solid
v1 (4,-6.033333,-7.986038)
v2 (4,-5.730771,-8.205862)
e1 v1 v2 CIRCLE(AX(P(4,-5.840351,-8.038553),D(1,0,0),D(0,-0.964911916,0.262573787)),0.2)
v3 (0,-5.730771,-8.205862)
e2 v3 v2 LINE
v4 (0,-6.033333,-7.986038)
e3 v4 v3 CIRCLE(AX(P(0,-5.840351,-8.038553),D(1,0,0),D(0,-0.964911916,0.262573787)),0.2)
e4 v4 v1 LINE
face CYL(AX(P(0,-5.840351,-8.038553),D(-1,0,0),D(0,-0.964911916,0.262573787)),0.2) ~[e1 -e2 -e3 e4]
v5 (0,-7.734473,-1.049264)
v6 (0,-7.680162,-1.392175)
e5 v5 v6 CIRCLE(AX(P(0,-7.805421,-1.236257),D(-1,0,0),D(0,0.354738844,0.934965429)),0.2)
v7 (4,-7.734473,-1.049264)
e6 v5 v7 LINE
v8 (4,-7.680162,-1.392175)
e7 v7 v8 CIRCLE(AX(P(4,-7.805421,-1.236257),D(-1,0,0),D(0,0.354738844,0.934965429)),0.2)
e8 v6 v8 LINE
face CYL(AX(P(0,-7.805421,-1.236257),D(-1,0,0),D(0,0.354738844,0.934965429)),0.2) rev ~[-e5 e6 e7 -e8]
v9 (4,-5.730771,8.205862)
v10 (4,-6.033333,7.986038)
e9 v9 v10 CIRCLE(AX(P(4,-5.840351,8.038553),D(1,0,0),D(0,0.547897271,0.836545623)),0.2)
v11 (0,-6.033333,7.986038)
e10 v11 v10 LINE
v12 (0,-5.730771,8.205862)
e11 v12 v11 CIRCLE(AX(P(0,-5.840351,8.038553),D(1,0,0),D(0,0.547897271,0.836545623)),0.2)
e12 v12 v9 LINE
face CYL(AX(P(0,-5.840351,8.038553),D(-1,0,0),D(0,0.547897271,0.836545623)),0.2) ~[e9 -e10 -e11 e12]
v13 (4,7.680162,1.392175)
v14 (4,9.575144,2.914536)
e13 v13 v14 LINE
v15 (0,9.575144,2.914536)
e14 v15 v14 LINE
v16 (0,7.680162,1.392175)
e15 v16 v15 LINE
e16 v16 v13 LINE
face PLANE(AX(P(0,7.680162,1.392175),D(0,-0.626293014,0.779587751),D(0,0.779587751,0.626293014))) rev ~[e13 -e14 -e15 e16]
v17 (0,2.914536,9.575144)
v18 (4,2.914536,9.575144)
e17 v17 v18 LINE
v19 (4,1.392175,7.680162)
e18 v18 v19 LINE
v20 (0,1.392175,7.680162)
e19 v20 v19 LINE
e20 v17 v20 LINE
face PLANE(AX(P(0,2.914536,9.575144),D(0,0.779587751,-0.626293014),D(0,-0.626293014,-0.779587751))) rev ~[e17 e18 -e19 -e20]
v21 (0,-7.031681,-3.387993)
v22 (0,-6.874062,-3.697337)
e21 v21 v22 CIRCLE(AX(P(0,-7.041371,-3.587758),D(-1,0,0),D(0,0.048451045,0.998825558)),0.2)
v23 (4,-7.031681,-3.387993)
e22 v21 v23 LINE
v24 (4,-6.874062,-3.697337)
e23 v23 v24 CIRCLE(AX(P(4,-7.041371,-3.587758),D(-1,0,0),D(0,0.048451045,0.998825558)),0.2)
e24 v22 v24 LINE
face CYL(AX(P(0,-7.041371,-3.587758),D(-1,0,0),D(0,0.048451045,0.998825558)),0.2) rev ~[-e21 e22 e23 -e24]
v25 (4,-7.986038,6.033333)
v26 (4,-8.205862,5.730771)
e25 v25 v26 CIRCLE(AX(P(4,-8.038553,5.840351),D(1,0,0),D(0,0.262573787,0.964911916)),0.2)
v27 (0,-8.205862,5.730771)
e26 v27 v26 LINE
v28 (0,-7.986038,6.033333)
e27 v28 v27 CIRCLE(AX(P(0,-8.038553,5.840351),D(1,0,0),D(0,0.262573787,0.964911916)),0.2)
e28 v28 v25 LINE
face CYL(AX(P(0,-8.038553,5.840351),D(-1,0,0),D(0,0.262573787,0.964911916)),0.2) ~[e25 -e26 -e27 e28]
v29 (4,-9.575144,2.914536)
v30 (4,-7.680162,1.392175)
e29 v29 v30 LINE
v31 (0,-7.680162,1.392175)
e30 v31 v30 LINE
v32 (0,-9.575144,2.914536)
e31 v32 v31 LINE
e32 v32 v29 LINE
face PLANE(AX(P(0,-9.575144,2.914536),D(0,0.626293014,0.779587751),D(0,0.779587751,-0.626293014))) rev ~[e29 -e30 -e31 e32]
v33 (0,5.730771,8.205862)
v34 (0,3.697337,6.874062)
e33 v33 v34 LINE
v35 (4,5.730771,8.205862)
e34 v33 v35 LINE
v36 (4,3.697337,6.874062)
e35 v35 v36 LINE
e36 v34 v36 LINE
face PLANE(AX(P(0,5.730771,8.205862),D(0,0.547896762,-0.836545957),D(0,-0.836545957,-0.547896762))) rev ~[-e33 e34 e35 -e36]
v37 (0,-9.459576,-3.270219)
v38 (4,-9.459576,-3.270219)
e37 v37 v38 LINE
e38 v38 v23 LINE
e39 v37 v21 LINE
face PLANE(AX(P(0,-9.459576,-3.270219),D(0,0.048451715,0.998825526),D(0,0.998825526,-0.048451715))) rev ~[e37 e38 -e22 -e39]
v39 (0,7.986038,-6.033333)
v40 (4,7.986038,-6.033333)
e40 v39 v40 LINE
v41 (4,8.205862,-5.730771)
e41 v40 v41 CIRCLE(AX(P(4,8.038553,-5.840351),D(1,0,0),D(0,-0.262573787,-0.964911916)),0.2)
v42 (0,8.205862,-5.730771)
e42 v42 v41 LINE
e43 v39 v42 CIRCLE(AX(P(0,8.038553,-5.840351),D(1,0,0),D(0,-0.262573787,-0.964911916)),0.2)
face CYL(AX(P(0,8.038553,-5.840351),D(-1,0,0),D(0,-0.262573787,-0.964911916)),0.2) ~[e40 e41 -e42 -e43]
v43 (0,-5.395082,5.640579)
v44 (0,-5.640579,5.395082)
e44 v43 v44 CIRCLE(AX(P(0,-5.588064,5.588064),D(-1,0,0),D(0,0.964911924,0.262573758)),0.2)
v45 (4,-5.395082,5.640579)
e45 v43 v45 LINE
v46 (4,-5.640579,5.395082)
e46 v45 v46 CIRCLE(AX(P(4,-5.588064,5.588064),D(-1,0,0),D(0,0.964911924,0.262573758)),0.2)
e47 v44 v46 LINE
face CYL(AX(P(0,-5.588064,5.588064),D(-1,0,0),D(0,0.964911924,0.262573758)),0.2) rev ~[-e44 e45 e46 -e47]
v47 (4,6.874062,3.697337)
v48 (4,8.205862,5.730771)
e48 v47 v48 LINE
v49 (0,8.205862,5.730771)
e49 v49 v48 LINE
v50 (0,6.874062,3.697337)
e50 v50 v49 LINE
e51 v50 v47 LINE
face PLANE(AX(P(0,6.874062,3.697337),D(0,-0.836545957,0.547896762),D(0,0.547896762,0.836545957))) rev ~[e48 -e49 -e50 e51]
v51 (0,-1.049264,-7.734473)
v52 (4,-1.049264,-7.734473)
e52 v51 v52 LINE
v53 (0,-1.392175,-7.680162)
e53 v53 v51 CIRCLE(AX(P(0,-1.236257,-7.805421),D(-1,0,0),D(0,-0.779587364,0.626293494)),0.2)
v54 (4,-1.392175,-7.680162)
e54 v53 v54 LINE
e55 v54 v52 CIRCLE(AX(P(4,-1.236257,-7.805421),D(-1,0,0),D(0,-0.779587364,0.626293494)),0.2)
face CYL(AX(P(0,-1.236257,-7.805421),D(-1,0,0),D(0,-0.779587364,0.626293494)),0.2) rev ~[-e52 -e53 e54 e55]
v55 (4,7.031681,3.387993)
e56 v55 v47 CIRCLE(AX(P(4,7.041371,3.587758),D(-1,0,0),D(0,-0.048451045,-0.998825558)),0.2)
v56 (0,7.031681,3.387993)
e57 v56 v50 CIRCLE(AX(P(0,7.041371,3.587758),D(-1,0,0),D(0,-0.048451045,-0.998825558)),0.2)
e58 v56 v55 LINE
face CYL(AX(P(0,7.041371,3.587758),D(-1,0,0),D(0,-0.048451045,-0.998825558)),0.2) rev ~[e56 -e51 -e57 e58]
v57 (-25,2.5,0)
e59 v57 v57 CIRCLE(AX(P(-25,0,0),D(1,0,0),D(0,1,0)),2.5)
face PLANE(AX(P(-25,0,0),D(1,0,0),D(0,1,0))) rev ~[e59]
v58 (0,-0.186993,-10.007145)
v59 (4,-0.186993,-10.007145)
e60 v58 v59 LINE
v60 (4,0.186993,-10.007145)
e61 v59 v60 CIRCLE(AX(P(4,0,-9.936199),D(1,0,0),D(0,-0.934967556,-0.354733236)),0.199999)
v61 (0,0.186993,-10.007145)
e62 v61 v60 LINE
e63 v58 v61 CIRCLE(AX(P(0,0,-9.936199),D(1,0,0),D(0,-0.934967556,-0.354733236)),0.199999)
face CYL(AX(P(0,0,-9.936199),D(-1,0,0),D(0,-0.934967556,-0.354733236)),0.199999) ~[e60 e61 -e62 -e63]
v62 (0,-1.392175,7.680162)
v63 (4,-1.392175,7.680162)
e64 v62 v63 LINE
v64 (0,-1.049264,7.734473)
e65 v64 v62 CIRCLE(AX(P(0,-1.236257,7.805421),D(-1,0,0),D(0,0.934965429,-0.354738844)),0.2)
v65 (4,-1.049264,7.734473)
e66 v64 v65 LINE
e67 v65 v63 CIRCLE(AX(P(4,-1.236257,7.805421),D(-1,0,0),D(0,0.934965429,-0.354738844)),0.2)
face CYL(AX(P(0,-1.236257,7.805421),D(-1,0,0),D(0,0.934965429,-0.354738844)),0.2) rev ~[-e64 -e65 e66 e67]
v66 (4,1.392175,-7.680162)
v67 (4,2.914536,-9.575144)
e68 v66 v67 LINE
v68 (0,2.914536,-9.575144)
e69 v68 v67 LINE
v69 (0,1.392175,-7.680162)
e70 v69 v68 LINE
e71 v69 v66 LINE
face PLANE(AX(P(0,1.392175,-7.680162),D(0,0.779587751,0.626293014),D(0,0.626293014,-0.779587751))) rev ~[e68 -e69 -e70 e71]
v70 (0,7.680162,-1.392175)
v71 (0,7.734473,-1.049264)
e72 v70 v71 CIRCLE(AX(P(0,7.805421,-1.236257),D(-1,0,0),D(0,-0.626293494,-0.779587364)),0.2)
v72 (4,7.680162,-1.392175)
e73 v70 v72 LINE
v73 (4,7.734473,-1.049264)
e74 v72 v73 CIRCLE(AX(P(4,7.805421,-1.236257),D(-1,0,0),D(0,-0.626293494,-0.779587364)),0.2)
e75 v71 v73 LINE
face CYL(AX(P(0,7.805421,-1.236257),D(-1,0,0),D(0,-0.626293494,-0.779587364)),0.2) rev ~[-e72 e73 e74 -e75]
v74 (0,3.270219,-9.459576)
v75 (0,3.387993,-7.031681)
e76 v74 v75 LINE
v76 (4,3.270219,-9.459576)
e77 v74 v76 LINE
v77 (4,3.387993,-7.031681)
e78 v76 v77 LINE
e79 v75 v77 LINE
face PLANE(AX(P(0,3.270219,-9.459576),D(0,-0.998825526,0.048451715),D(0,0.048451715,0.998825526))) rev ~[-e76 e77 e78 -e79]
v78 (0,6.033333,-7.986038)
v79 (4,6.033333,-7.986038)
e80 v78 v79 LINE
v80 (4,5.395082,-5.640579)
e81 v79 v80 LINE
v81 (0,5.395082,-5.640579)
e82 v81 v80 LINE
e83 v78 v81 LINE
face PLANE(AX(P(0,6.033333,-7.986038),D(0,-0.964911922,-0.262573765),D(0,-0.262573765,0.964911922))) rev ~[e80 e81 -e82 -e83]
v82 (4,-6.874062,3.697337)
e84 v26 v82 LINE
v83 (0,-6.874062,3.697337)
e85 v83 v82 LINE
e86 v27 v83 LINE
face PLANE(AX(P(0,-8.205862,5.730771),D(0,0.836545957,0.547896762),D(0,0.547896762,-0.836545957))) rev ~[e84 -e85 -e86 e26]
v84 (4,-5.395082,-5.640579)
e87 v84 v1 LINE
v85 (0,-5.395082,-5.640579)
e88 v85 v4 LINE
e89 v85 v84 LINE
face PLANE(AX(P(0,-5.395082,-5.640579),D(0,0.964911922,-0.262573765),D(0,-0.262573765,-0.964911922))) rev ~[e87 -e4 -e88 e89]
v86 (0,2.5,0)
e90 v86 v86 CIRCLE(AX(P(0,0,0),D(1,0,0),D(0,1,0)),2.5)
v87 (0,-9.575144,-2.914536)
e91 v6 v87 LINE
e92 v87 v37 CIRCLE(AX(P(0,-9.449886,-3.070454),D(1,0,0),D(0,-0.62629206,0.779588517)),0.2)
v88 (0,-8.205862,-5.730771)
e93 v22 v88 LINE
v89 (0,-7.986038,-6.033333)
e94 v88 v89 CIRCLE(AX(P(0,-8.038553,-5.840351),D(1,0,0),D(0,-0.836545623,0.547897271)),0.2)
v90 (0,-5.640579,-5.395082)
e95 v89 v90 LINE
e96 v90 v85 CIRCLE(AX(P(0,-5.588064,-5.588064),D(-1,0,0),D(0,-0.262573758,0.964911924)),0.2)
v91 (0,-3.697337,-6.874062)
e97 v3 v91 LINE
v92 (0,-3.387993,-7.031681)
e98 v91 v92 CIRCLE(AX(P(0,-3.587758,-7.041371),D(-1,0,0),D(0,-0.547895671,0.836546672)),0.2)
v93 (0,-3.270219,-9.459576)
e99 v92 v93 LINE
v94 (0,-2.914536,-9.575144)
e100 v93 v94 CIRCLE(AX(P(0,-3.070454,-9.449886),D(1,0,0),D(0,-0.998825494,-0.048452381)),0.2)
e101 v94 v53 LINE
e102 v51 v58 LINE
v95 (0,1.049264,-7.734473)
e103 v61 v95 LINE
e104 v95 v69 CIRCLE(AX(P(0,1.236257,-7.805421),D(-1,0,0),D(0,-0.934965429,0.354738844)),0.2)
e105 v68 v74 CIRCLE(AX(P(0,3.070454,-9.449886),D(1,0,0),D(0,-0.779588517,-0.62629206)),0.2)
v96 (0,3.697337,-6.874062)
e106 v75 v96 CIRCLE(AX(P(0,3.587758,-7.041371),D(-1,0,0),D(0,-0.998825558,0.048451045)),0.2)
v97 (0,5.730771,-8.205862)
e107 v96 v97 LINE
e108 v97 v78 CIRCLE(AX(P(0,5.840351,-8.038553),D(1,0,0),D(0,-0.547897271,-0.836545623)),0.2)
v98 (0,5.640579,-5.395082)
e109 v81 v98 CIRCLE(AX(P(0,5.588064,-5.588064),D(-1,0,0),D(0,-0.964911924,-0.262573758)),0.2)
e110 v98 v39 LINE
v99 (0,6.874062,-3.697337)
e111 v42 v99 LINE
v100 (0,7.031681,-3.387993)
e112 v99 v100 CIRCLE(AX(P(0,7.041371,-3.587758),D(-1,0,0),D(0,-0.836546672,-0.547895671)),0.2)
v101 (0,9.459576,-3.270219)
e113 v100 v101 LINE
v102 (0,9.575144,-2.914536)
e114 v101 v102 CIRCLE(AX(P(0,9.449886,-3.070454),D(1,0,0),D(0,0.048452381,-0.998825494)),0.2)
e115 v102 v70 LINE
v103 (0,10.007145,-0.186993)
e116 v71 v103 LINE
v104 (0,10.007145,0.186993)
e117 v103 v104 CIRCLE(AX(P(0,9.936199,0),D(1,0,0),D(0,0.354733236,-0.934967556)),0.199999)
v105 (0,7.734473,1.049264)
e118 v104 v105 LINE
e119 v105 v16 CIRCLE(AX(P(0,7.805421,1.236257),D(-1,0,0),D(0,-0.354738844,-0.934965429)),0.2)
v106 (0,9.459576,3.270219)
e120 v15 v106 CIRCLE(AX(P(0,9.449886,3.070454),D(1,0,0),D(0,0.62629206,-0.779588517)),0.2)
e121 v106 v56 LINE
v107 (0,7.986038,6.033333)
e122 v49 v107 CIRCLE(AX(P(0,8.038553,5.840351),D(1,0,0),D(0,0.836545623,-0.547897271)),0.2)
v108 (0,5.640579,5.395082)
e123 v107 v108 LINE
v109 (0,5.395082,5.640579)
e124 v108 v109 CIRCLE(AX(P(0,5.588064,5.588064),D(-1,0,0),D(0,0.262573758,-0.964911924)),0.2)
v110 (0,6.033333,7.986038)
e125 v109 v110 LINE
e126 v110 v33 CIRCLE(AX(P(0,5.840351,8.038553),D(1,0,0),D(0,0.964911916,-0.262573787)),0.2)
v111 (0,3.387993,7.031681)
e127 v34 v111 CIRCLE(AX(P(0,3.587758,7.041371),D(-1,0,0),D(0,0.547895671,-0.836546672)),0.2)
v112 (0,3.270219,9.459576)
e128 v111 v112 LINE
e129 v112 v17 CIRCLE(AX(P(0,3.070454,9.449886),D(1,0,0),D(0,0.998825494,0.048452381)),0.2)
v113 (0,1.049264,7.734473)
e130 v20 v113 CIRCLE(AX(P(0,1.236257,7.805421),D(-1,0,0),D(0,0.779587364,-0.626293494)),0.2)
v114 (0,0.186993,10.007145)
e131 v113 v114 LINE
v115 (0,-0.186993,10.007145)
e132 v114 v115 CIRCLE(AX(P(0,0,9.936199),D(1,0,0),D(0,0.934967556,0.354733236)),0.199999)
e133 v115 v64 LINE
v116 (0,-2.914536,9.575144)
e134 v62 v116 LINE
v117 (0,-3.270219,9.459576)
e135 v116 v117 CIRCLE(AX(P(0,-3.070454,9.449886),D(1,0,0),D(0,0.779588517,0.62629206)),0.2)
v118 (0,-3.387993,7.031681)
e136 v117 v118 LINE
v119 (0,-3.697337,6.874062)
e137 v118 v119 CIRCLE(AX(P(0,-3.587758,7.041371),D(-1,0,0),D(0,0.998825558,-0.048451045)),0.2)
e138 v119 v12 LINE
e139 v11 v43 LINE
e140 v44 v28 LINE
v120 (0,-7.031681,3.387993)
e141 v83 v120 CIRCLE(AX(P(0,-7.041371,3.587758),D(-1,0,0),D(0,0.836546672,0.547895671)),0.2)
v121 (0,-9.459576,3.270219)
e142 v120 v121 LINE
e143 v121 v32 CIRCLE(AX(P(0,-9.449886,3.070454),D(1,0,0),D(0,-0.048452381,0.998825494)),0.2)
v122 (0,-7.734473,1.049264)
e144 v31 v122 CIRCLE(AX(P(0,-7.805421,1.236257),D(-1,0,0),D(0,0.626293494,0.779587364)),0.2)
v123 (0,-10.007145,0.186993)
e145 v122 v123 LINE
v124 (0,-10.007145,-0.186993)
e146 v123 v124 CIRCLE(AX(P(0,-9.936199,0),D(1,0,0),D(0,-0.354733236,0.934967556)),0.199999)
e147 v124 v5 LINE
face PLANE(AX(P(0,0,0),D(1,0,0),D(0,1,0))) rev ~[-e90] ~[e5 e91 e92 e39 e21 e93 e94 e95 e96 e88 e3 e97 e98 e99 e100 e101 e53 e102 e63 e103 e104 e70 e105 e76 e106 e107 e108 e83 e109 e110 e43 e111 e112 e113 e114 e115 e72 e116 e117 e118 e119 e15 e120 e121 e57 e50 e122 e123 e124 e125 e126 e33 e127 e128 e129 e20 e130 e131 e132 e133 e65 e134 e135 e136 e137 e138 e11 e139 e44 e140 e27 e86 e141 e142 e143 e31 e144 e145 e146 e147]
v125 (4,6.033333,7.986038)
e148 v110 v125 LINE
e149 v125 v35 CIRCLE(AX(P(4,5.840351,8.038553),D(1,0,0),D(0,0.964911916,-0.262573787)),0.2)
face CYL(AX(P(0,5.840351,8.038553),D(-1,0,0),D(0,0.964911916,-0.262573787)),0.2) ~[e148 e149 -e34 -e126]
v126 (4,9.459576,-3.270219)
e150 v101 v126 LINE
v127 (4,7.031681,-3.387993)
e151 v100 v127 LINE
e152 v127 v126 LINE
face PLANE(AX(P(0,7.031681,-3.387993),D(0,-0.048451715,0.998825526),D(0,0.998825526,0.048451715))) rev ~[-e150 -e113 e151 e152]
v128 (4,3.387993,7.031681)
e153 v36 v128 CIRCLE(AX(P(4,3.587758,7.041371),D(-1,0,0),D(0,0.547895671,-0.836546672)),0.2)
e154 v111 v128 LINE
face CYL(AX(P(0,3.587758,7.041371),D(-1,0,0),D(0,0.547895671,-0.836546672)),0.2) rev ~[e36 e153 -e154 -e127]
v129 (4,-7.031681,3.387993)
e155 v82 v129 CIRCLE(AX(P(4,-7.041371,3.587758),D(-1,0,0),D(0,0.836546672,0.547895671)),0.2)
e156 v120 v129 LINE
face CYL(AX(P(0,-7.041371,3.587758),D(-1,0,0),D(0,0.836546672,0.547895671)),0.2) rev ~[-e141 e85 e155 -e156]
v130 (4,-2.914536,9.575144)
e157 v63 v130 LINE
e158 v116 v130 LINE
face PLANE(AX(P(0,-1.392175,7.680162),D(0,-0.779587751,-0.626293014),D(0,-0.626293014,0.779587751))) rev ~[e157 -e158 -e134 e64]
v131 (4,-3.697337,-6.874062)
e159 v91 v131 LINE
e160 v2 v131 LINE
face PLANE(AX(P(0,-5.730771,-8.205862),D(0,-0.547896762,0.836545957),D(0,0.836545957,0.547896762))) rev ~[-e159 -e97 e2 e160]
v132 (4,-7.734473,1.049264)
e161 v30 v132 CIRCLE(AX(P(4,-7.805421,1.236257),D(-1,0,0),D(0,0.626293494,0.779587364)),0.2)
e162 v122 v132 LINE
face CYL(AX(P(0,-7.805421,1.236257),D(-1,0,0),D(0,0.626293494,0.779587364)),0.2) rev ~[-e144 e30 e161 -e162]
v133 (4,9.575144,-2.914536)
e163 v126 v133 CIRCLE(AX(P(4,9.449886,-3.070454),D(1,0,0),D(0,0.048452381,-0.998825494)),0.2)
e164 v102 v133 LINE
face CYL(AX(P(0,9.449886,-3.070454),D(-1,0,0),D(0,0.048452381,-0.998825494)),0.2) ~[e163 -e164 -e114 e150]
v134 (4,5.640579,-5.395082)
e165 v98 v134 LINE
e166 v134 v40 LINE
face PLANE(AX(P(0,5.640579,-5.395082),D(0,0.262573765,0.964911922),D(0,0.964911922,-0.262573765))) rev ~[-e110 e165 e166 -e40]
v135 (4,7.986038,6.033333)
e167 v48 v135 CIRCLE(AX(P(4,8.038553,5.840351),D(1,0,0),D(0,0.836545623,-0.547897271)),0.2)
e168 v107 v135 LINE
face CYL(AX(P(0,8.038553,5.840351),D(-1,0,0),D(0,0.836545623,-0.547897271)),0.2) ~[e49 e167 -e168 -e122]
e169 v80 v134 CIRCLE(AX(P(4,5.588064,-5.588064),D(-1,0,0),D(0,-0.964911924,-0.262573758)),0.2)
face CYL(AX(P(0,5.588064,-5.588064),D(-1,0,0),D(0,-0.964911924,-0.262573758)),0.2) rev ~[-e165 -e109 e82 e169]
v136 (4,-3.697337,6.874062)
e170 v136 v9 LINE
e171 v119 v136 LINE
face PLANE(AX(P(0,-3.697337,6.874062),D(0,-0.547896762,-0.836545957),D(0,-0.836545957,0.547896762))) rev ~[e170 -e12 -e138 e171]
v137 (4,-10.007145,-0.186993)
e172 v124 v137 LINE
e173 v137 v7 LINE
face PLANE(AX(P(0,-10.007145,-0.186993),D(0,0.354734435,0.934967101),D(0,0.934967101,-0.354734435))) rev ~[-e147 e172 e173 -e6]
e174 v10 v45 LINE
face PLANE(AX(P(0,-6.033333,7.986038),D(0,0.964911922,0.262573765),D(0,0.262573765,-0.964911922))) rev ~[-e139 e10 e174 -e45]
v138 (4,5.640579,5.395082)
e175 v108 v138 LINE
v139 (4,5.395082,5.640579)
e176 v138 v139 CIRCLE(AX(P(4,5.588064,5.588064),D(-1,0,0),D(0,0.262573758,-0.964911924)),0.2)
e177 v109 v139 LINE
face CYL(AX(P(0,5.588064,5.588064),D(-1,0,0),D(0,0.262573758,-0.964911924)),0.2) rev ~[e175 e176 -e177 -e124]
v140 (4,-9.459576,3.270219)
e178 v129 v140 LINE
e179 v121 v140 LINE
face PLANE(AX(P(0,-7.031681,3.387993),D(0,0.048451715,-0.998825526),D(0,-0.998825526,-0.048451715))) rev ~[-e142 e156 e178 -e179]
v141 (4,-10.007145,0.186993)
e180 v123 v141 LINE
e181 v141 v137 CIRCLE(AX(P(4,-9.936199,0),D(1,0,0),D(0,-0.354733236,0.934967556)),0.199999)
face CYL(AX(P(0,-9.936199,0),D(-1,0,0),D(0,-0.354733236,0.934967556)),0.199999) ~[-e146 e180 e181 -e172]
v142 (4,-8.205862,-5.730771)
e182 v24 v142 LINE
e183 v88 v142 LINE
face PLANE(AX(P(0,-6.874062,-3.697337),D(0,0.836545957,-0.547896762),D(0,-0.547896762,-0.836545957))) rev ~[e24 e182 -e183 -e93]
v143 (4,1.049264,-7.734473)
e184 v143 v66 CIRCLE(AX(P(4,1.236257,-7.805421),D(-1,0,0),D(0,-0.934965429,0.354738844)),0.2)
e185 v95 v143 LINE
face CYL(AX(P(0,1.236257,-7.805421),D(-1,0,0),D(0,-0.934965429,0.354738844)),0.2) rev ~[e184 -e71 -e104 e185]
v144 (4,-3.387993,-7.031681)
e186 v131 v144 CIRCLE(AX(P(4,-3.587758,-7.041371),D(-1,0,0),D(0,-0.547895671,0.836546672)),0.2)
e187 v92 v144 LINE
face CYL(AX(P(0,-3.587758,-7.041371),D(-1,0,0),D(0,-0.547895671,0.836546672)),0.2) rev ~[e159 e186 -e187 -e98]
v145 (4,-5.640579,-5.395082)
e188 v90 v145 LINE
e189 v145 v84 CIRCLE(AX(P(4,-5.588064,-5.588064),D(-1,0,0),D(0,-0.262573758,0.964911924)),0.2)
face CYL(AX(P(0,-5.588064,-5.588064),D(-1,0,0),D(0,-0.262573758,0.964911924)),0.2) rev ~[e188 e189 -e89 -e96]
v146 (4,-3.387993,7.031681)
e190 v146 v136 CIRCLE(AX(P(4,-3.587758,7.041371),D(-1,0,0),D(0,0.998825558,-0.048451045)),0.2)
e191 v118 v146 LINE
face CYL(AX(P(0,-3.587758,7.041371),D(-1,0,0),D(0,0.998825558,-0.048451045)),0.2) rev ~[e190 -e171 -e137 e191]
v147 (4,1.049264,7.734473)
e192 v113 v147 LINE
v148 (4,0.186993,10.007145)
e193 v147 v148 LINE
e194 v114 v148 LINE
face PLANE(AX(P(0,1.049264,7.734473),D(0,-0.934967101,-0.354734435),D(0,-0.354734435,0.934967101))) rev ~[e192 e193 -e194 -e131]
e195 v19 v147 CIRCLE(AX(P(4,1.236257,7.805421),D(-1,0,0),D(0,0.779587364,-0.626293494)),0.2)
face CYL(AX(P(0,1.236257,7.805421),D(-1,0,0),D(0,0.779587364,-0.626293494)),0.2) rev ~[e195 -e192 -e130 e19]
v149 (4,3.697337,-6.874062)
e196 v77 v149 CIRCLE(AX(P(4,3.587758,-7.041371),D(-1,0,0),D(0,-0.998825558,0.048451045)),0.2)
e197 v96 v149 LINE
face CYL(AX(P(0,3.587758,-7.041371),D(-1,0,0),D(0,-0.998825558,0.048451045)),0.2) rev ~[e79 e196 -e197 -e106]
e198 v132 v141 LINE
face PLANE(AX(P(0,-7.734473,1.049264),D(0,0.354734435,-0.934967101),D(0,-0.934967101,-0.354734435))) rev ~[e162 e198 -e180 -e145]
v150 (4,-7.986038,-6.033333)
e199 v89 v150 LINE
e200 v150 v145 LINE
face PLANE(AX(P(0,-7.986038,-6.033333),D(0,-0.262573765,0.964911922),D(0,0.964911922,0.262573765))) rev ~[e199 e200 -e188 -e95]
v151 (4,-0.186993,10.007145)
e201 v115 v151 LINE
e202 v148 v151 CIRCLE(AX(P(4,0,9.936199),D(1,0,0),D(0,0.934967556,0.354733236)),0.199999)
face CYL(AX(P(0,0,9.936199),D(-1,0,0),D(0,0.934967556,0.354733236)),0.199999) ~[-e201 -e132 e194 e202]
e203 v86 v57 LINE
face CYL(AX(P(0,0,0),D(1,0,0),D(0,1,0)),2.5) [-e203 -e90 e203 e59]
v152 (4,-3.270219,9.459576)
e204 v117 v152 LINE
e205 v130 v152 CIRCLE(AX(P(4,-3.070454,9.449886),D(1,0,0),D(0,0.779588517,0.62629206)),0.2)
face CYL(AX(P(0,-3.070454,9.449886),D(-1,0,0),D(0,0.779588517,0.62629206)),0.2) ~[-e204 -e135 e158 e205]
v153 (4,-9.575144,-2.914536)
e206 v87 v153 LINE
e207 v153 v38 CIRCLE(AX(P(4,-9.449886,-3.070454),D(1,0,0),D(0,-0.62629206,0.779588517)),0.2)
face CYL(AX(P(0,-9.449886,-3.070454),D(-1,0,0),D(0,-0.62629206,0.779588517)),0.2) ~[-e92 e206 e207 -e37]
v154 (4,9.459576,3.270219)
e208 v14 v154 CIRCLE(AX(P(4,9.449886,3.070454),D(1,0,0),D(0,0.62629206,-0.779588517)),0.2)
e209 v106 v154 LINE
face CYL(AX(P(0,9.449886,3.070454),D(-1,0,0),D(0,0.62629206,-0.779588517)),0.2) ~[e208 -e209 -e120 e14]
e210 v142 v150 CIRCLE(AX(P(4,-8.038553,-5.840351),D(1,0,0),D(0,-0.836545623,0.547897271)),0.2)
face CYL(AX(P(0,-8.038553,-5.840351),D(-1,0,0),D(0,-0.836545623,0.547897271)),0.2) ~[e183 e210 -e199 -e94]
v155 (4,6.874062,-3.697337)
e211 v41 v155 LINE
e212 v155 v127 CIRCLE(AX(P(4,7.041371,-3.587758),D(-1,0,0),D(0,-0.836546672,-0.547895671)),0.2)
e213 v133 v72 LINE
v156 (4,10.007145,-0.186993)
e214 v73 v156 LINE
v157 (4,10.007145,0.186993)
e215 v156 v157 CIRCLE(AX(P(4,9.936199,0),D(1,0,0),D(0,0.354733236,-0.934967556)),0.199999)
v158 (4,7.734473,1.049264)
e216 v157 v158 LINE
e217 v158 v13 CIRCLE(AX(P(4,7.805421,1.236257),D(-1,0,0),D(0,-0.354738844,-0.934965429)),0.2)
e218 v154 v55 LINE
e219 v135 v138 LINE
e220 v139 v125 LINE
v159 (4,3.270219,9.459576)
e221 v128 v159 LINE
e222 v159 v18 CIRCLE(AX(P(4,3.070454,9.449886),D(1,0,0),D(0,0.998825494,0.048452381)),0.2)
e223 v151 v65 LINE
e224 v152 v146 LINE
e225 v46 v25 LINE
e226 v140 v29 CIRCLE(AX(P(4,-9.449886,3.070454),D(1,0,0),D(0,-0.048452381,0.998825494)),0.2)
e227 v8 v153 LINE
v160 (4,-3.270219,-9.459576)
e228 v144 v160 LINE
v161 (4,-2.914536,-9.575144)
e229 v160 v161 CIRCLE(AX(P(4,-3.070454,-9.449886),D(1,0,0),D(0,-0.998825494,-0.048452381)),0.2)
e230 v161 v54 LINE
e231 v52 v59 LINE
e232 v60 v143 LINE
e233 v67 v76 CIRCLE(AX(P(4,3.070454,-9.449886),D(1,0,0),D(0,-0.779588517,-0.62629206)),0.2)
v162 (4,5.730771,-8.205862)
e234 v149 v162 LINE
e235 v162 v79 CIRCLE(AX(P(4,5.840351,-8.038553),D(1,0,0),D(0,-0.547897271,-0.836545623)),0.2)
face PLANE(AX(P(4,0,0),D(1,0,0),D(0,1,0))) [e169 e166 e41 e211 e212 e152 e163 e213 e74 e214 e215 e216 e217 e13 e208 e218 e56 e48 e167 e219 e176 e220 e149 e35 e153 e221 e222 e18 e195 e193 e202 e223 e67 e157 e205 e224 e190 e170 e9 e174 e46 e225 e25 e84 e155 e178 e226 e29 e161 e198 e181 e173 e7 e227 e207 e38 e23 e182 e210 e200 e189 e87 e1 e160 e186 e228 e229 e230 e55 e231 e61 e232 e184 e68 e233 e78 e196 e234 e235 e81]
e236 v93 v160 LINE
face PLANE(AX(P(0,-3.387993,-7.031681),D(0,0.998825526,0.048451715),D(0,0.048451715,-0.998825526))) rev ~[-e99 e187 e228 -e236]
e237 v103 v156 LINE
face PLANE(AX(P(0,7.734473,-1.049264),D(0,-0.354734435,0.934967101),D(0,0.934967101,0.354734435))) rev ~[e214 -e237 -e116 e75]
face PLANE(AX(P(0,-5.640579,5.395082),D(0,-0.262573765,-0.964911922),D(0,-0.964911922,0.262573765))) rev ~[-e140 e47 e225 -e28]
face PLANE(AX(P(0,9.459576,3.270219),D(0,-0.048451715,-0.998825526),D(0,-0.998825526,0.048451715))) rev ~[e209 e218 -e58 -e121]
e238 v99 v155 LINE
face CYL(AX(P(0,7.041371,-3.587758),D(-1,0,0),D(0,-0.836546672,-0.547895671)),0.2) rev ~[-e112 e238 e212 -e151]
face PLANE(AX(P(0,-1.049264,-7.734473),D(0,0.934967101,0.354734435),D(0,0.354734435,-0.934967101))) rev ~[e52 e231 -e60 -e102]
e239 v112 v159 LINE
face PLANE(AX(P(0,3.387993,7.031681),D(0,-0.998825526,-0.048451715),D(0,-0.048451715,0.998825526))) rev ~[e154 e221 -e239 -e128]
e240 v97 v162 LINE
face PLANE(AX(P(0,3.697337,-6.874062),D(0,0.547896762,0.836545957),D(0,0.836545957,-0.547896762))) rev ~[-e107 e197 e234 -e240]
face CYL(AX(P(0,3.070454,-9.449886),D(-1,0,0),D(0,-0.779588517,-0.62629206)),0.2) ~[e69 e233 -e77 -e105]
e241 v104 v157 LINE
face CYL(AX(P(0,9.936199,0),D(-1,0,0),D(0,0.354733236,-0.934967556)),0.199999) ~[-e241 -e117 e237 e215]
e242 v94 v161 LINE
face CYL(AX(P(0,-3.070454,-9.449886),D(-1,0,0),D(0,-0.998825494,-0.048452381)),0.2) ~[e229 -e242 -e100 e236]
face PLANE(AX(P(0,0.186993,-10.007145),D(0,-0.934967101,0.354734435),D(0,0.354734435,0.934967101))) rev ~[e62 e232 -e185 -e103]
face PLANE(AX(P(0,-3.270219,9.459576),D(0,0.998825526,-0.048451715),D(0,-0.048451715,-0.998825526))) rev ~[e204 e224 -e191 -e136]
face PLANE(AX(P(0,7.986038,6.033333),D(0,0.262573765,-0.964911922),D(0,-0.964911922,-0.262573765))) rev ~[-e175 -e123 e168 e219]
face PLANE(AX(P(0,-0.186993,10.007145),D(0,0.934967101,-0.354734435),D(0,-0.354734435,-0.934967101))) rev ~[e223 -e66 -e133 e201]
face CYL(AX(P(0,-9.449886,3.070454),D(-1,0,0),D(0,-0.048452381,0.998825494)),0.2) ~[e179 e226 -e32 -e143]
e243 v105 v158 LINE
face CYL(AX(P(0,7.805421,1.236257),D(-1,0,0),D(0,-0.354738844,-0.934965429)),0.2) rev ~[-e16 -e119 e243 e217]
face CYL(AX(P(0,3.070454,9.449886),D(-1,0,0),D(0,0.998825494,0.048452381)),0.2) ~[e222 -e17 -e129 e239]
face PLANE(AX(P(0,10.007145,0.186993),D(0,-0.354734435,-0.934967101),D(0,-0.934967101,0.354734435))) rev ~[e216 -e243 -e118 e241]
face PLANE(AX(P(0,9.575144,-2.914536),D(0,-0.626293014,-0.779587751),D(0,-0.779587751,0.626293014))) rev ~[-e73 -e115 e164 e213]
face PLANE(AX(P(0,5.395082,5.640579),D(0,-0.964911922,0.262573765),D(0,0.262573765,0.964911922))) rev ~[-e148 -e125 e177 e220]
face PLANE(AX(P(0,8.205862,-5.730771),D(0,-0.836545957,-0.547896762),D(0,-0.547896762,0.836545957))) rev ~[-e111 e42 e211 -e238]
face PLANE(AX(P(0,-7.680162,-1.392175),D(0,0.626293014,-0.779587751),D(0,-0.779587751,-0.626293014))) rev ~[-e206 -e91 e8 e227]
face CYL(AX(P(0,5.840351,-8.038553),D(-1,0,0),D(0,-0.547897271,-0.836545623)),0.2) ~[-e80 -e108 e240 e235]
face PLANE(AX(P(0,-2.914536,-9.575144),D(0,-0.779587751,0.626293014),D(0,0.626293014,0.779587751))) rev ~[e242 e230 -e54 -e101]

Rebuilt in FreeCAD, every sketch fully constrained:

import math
import FreeCAD as App
import Part
import Sketcher

V = App.Vector

doc = App.newDocument("Part")
body = doc.addObject("PartDesign::Body", "Body")

# Sketch on YZ plane
sketch1 = body.newObject("Sketcher::SketchObject", "Sketch")
sketch1.AttachmentSupport = (doc.getObject("YZ_Plane"), [""])
sketch1.MapMode = "FlatFace"
sketch1.addGeometry(Part.ArcOfCircle(Part.Circle(V(0, 9.94, 0), V(0, 0, 1), 0.2), math.radians(21), math.radians(159)), False)
sketch1.addGeometry(Part.LineSegment(V(-0.19, 10.01, 0), V(-1.05, 7.73, 0)), False)
sketch1.addGeometry(Part.ArcOfCircle(Part.Circle(V(-1.24, 7.81, 0), V(0, 0, 1), 0.2), math.radians(-141), math.radians(-21)), False)
sketch1.addGeometry(Part.LineSegment(V(-1.39, 7.68, 0), V(-2.91, 9.58, 0)), False)
sketch1.addGeometry(Part.ArcOfCircle(Part.Circle(V(-3.07, 9.45, 0), V(0, 0, 1), 0.2), math.radians(39), math.radians(177)), False)
sketch1.addGeometry(Part.LineSegment(V(-3.27, 9.46, 0), V(-3.39, 7.03, 0)), False)
sketch1.addGeometry(Part.ArcOfCircle(Part.Circle(V(-3.59, 7.04, 0), V(0, 0, 1), 0.2), math.radians(-123), math.radians(-3)), False)
sketch1.addGeometry(Part.LineSegment(V(-3.7, 6.87, 0), V(-5.73, 8.21, 0)), False)
sketch1.addGeometry(Part.ArcOfCircle(Part.Circle(V(-5.84, 8.04, 0), V(0, 0, 1), 0.2), math.radians(57), math.radians(195)), False)
sketch1.addGeometry(Part.LineSegment(V(-6.03, 7.99, 0), V(-5.4, 5.64, 0)), False)
sketch1.addGeometry(Part.ArcOfCircle(Part.Circle(V(-5.59, 5.59, 0), V(0, 0, 1), 0.2), math.radians(-105), math.radians(15)), False)
sketch1.addGeometry(Part.LineSegment(V(-5.64, 5.4, 0), V(-7.99, 6.03, 0)), False)
sketch1.addGeometry(Part.ArcOfCircle(Part.Circle(V(-8.04, 5.84, 0), V(0, 0, 1), 0.2), math.radians(75), math.radians(213)), False)
sketch1.addGeometry(Part.LineSegment(V(-8.21, 5.73, 0), V(-6.87, 3.7, 0)), False)
sketch1.addGeometry(Part.ArcOfCircle(Part.Circle(V(-7.04, 3.59, 0), V(0, 0, 1), 0.2), math.radians(-87), math.radians(33)), False)
sketch1.addGeometry(Part.LineSegment(V(-7.03, 3.39, 0), V(-9.46, 3.27, 0)), False)
sketch1.addGeometry(Part.ArcOfCircle(Part.Circle(V(-9.45, 3.07, 0), V(0, 0, 1), 0.2), math.radians(93), math.radians(231)), False)
sketch1.addGeometry(Part.LineSegment(V(-9.58, 2.91, 0), V(-7.68, 1.39, 0)), False)
sketch1.addGeometry(Part.ArcOfCircle(Part.Circle(V(-7.81, 1.24, 0), V(0, 0, 1), 0.2), math.radians(-69), math.radians(51)), False)
sketch1.addGeometry(Part.LineSegment(V(-7.73, 1.05, 0), V(-10.01, 0.19, 0)), False)
sketch1.addGeometry(Part.ArcOfCircle(Part.Circle(V(-9.94, 0, 0), V(0, 0, 1), 0.2), math.radians(111), math.radians(249)), False)
sketch1.addGeometry(Part.LineSegment(V(-10.01, -0.19, 0), V(-7.73, -1.05, 0)), False)
sketch1.addGeometry(Part.ArcOfCircle(Part.Circle(V(-7.81, -1.24, 0), V(0, 0, 1), 0.2), math.radians(-51), math.radians(69)), False)
sketch1.addGeometry(Part.LineSegment(V(-7.68, -1.39, 0), V(-9.58, -2.91, 0)), False)
sketch1.addGeometry(Part.ArcOfCircle(Part.Circle(V(-9.45, -3.07, 0), V(0, 0, 1), 0.2), math.radians(129), math.radians(267)), False)
sketch1.addGeometry(Part.LineSegment(V(-9.46, -3.27, 0), V(-7.03, -3.39, 0)), False)
sketch1.addGeometry(Part.ArcOfCircle(Part.Circle(V(-7.04, -3.59, 0), V(0, 0, 1), 0.2), math.radians(-33), math.radians(87)), False)
sketch1.addGeometry(Part.LineSegment(V(-6.87, -3.7, 0), V(-8.21, -5.73, 0)), False)
sketch1.addGeometry(Part.ArcOfCircle(Part.Circle(V(-8.04, -5.84, 0), V(0, 0, 1), 0.2), math.radians(147), math.radians(285)), False)
sketch1.addGeometry(Part.LineSegment(V(-7.99, -6.03, 0), V(-5.64, -5.4, 0)), False)
sketch1.addGeometry(Part.ArcOfCircle(Part.Circle(V(-5.59, -5.59, 0), V(0, 0, 1), 0.2), math.radians(-15), math.radians(105)), False)
sketch1.addGeometry(Part.LineSegment(V(-5.4, -5.64, 0), V(-6.03, -7.99, 0)), False)
sketch1.addGeometry(Part.ArcOfCircle(Part.Circle(V(-5.84, -8.04, 0), V(0, 0, 1), 0.2), math.radians(165), math.radians(303)), False)
sketch1.addGeometry(Part.LineSegment(V(-5.73, -8.21, 0), V(-3.7, -6.87, 0)), False)
sketch1.addGeometry(Part.ArcOfCircle(Part.Circle(V(-3.59, -7.04, 0), V(0, 0, 1), 0.2), math.radians(3), math.radians(123)), False)
sketch1.addGeometry(Part.LineSegment(V(-3.39, -7.03, 0), V(-3.27, -9.46, 0)), False)
sketch1.addGeometry(Part.ArcOfCircle(Part.Circle(V(-3.07, -9.45, 0), V(0, 0, 1), 0.2), math.radians(-177), math.radians(-39)), False)
sketch1.addGeometry(Part.LineSegment(V(-2.91, -9.58, 0), V(-1.39, -7.68, 0)), False)
sketch1.addGeometry(Part.ArcOfCircle(Part.Circle(V(-1.24, -7.81, 0), V(0, 0, 1), 0.2), math.radians(21), math.radians(141)), False)
sketch1.addGeometry(Part.LineSegment(V(-1.05, -7.73, 0), V(-0.19, -10.01, 0)), False)
sketch1.addGeometry(Part.ArcOfCircle(Part.Circle(V(0, -9.94, 0), V(0, 0, 1), 0.2), math.radians(-159), math.radians(-21)), False)
sketch1.addGeometry(Part.LineSegment(V(0.19, -10.01, 0), V(1.05, -7.73, 0)), False)
sketch1.addGeometry(Part.ArcOfCircle(Part.Circle(V(1.24, -7.81, 0), V(0, 0, 1), 0.2), math.radians(39), math.radians(159)), False)
sketch1.addGeometry(Part.LineSegment(V(1.39, -7.68, 0), V(2.91, -9.58, 0)), False)
sketch1.addGeometry(Part.ArcOfCircle(Part.Circle(V(3.07, -9.45, 0), V(0, 0, 1), 0.2), math.radians(-141), math.radians(-3)), False)
sketch1.addGeometry(Part.LineSegment(V(3.27, -9.46, 0), V(3.39, -7.03, 0)), False)
sketch1.addGeometry(Part.ArcOfCircle(Part.Circle(V(3.59, -7.04, 0), V(0, 0, 1), 0.2), math.radians(57), math.radians(177)), False)
sketch1.addGeometry(Part.LineSegment(V(3.7, -6.87, 0), V(5.73, -8.21, 0)), False)
sketch1.addGeometry(Part.ArcOfCircle(Part.Circle(V(5.84, -8.04, 0), V(0, 0, 1), 0.2), math.radians(-123), math.radians(15)), False)
sketch1.addGeometry(Part.LineSegment(V(6.03, -7.99, 0), V(5.4, -5.64, 0)), False)
sketch1.addGeometry(Part.ArcOfCircle(Part.Circle(V(5.59, -5.59, 0), V(0, 0, 1), 0.2), math.radians(75), math.radians(195)), False)
sketch1.addGeometry(Part.LineSegment(V(5.64, -5.4, 0), V(7.99, -6.03, 0)), False)
sketch1.addGeometry(Part.ArcOfCircle(Part.Circle(V(8.04, -5.84, 0), V(0, 0, 1), 0.2), math.radians(-105), math.radians(33)), False)
sketch1.addGeometry(Part.LineSegment(V(8.21, -5.73, 0), V(6.87, -3.7, 0)), False)
sketch1.addGeometry(Part.ArcOfCircle(Part.Circle(V(7.04, -3.59, 0), V(0, 0, 1), 0.2), math.radians(93), math.radians(213)), False)
sketch1.addGeometry(Part.LineSegment(V(7.03, -3.39, 0), V(9.46, -3.27, 0)), False)
sketch1.addGeometry(Part.ArcOfCircle(Part.Circle(V(9.45, -3.07, 0), V(0, 0, 1), 0.2), math.radians(-87), math.radians(51)), False)
sketch1.addGeometry(Part.LineSegment(V(9.58, -2.91, 0), V(7.68, -1.39, 0)), False)
sketch1.addGeometry(Part.ArcOfCircle(Part.Circle(V(7.81, -1.24, 0), V(0, 0, 1), 0.2), math.radians(111), math.radians(231)), False)
sketch1.addGeometry(Part.LineSegment(V(7.73, -1.05, 0), V(10.01, -0.19, 0)), False)
sketch1.addGeometry(Part.ArcOfCircle(Part.Circle(V(9.94, 0, 0), V(0, 0, 1), 0.2), math.radians(-69), math.radians(69)), False)
sketch1.addGeometry(Part.LineSegment(V(10.01, 0.19, 0), V(7.73, 1.05, 0)), False)
sketch1.addGeometry(Part.ArcOfCircle(Part.Circle(V(7.81, 1.24, 0), V(0, 0, 1), 0.2), math.radians(129), math.radians(249)), False)
sketch1.addGeometry(Part.LineSegment(V(7.68, 1.39, 0), V(9.58, 2.91, 0)), False)
sketch1.addGeometry(Part.ArcOfCircle(Part.Circle(V(9.45, 3.07, 0), V(0, 0, 1), 0.2), math.radians(-51), math.radians(87)), False)
sketch1.addGeometry(Part.LineSegment(V(9.46, 3.27, 0), V(7.03, 3.39, 0)), False)
sketch1.addGeometry(Part.ArcOfCircle(Part.Circle(V(7.04, 3.59, 0), V(0, 0, 1), 0.2), math.radians(147), math.radians(267)), False)
sketch1.addGeometry(Part.LineSegment(V(6.87, 3.7, 0), V(8.21, 5.73, 0)), False)
sketch1.addGeometry(Part.ArcOfCircle(Part.Circle(V(8.04, 5.84, 0), V(0, 0, 1), 0.2), math.radians(-33), math.radians(105)), False)
sketch1.addGeometry(Part.LineSegment(V(7.99, 6.03, 0), V(5.64, 5.4, 0)), False)
sketch1.addGeometry(Part.ArcOfCircle(Part.Circle(V(5.59, 5.59, 0), V(0, 0, 1), 0.2), math.radians(165), math.radians(285)), False)
sketch1.addGeometry(Part.LineSegment(V(5.4, 5.64, 0), V(6.03, 7.99, 0)), False)
sketch1.addGeometry(Part.ArcOfCircle(Part.Circle(V(5.84, 8.04, 0), V(0, 0, 1), 0.2), math.radians(-15), math.radians(123)), False)
sketch1.addGeometry(Part.LineSegment(V(5.73, 8.21, 0), V(3.7, 6.87, 0)), False)
sketch1.addGeometry(Part.ArcOfCircle(Part.Circle(V(3.59, 7.04, 0), V(0, 0, 1), 0.2), math.radians(-177), math.radians(-57)), False)
sketch1.addGeometry(Part.LineSegment(V(3.39, 7.03, 0), V(3.27, 9.46, 0)), False)
sketch1.addGeometry(Part.ArcOfCircle(Part.Circle(V(3.07, 9.45, 0), V(0, 0, 1), 0.2), math.radians(3), math.radians(141)), False)
sketch1.addGeometry(Part.LineSegment(V(2.91, 9.58, 0), V(1.39, 7.68, 0)), False)
sketch1.addGeometry(Part.ArcOfCircle(Part.Circle(V(1.24, 7.81, 0), V(0, 0, 1), 0.2), math.radians(-159), math.radians(-39)), False)
sketch1.addGeometry(Part.LineSegment(V(1.05, 7.73, 0), V(0.19, 10.01, 0)), False)
sketch1.addConstraint(Sketcher.Constraint("Tangent", 0, 2, 1, 1))
sketch1.addConstraint(Sketcher.Constraint("Coincident", 1, 2, 2, 2))
sketch1.addConstraint(Sketcher.Constraint("Tangent", 2, 1, 3, 1))
sketch1.addConstraint(Sketcher.Constraint("Tangent", 3, 2, 4, 1))
sketch1.addConstraint(Sketcher.Constraint("Tangent", 4, 2, 5, 1))
sketch1.addConstraint(Sketcher.Constraint("Tangent", 5, 2, 6, 2))
sketch1.addConstraint(Sketcher.Constraint("Tangent", 6, 1, 7, 1))
sketch1.addConstraint(Sketcher.Constraint("Tangent", 7, 2, 8, 1))
sketch1.addConstraint(Sketcher.Constraint("Tangent", 8, 2, 9, 1))
sketch1.addConstraint(Sketcher.Constraint("Tangent", 9, 2, 10, 2))
sketch1.addConstraint(Sketcher.Constraint("Tangent", 10, 1, 11, 1))
sketch1.addConstraint(Sketcher.Constraint("Tangent", 11, 2, 12, 1))
sketch1.addConstraint(Sketcher.Constraint("Tangent", 12, 2, 13, 1))
sketch1.addConstraint(Sketcher.Constraint("Tangent", 13, 2, 14, 2))
sketch1.addConstraint(Sketcher.Constraint("Tangent", 14, 1, 15, 1))
sketch1.addConstraint(Sketcher.Constraint("Tangent", 15, 2, 16, 1))
sketch1.addConstraint(Sketcher.Constraint("Tangent", 16, 2, 17, 1))
sketch1.addConstraint(Sketcher.Constraint("Tangent", 17, 2, 18, 2))
sketch1.addConstraint(Sketcher.Constraint("Coincident", 18, 1, 19, 1))
sketch1.addConstraint(Sketcher.Constraint("Tangent", 19, 2, 20, 1))
sketch1.addConstraint(Sketcher.Constraint("Tangent", 20, 2, 21, 1))
sketch1.addConstraint(Sketcher.Constraint("Coincident", 21, 2, 22, 2))
sketch1.addConstraint(Sketcher.Constraint("Tangent", 22, 1, 23, 1))
sketch1.addConstraint(Sketcher.Constraint("Tangent", 23, 2, 24, 1))
sketch1.addConstraint(Sketcher.Constraint("Tangent", 24, 2, 25, 1))
sketch1.addConstraint(Sketcher.Constraint("Tangent", 25, 2, 26, 2))
sketch1.addConstraint(Sketcher.Constraint("Tangent", 26, 1, 27, 1))
sketch1.addConstraint(Sketcher.Constraint("Tangent", 27, 2, 28, 1))
sketch1.addConstraint(Sketcher.Constraint("Tangent", 28, 2, 29, 1))
sketch1.addConstraint(Sketcher.Constraint("Tangent", 29, 2, 30, 2))
sketch1.addConstraint(Sketcher.Constraint("Tangent", 30, 1, 31, 1))
sketch1.addConstraint(Sketcher.Constraint("Tangent", 31, 2, 32, 1))
sketch1.addConstraint(Sketcher.Constraint("Tangent", 32, 2, 33, 1))
sketch1.addConstraint(Sketcher.Constraint("Tangent", 33, 2, 34, 2))
sketch1.addConstraint(Sketcher.Constraint("Tangent", 34, 1, 35, 1))
sketch1.addConstraint(Sketcher.Constraint("Tangent", 35, 2, 36, 1))
sketch1.addConstraint(Sketcher.Constraint("Tangent", 36, 2, 37, 1))
sketch1.addConstraint(Sketcher.Constraint("Tangent", 37, 2, 38, 2))
sketch1.addConstraint(Sketcher.Constraint("Coincident", 38, 1, 39, 1))
sketch1.addConstraint(Sketcher.Constraint("Tangent", 39, 2, 40, 1))
sketch1.addConstraint(Sketcher.Constraint("Tangent", 40, 2, 41, 1))
sketch1.addConstraint(Sketcher.Constraint("Coincident", 41, 2, 42, 2))
sketch1.addConstraint(Sketcher.Constraint("Tangent", 42, 1, 43, 1))
sketch1.addConstraint(Sketcher.Constraint("Tangent", 43, 2, 44, 1))
sketch1.addConstraint(Sketcher.Constraint("Tangent", 44, 2, 45, 1))
sketch1.addConstraint(Sketcher.Constraint("Tangent", 45, 2, 46, 2))
sketch1.addConstraint(Sketcher.Constraint("Tangent", 46, 1, 47, 1))
sketch1.addConstraint(Sketcher.Constraint("Tangent", 47, 2, 48, 1))
sketch1.addConstraint(Sketcher.Constraint("Tangent", 48, 2, 49, 1))
sketch1.addConstraint(Sketcher.Constraint("Tangent", 49, 2, 50, 2))
sketch1.addConstraint(Sketcher.Constraint("Tangent", 50, 1, 51, 1))
sketch1.addConstraint(Sketcher.Constraint("Tangent", 51, 2, 52, 1))
sketch1.addConstraint(Sketcher.Constraint("Tangent", 52, 2, 53, 1))
sketch1.addConstraint(Sketcher.Constraint("Tangent", 53, 2, 54, 2))
sketch1.addConstraint(Sketcher.Constraint("Tangent", 54, 1, 55, 1))
sketch1.addConstraint(Sketcher.Constraint("Tangent", 55, 2, 56, 1))
sketch1.addConstraint(Sketcher.Constraint("Tangent", 56, 2, 57, 1))
sketch1.addConstraint(Sketcher.Constraint("Tangent", 57, 2, 58, 2))
sketch1.addConstraint(Sketcher.Constraint("Coincident", 58, 1, 59, 1))
sketch1.addConstraint(Sketcher.Constraint("Tangent", 59, 2, 60, 1))
sketch1.addConstraint(Sketcher.Constraint("Tangent", 60, 2, 61, 1))
sketch1.addConstraint(Sketcher.Constraint("Coincident", 61, 2, 62, 2))
sketch1.addConstraint(Sketcher.Constraint("Tangent", 62, 1, 63, 1))
sketch1.addConstraint(Sketcher.Constraint("Tangent", 63, 2, 64, 1))
sketch1.addConstraint(Sketcher.Constraint("Tangent", 64, 2, 65, 1))
sketch1.addConstraint(Sketcher.Constraint("Tangent", 65, 2, 66, 2))
sketch1.addConstraint(Sketcher.Constraint("Tangent", 66, 1, 67, 1))
sketch1.addConstraint(Sketcher.Constraint("Tangent", 67, 2, 68, 1))
sketch1.addConstraint(Sketcher.Constraint("Tangent", 68, 2, 69, 1))
sketch1.addConstraint(Sketcher.Constraint("Tangent", 69, 2, 70, 2))
sketch1.addConstraint(Sketcher.Constraint("Tangent", 70, 1, 71, 1))
sketch1.addConstraint(Sketcher.Constraint("Tangent", 71, 2, 72, 1))
sketch1.addConstraint(Sketcher.Constraint("Tangent", 72, 2, 73, 1))
sketch1.addConstraint(Sketcher.Constraint("Tangent", 73, 2, 74, 2))
sketch1.addConstraint(Sketcher.Constraint("Tangent", 74, 1, 75, 1))
sketch1.addConstraint(Sketcher.Constraint("Tangent", 75, 2, 76, 1))
sketch1.addConstraint(Sketcher.Constraint("Tangent", 76, 2, 77, 1))
sketch1.addConstraint(Sketcher.Constraint("Tangent", 77, 2, 78, 2))
sketch1.addConstraint(Sketcher.Constraint("Coincident", 78, 1, 79, 1))
sketch1.addConstraint(Sketcher.Constraint("Tangent", 79, 2, 0, 1))
sketch1.addConstraint(Sketcher.Constraint("Equal", 0, 2))
sketch1.addConstraint(Sketcher.Constraint("Equal", 2, 4))
sketch1.addConstraint(Sketcher.Constraint("Equal", 4, 6))
sketch1.addConstraint(Sketcher.Constraint("Equal", 6, 8))
sketch1.addConstraint(Sketcher.Constraint("Equal", 8, 10))
sketch1.addConstraint(Sketcher.Constraint("Equal", 10, 12))
sketch1.addConstraint(Sketcher.Constraint("Equal", 12, 14))
sketch1.addConstraint(Sketcher.Constraint("Equal", 14, 16))
sketch1.addConstraint(Sketcher.Constraint("Equal", 16, 18))
sketch1.addConstraint(Sketcher.Constraint("Equal", 18, 20))
sketch1.addConstraint(Sketcher.Constraint("Equal", 20, 22))
sketch1.addConstraint(Sketcher.Constraint("Equal", 22, 24))
sketch1.addConstraint(Sketcher.Constraint("Equal", 24, 26))
sketch1.addConstraint(Sketcher.Constraint("Equal", 26, 28))
sketch1.addConstraint(Sketcher.Constraint("Equal", 28, 30))
sketch1.addConstraint(Sketcher.Constraint("Equal", 30, 32))
sketch1.addConstraint(Sketcher.Constraint("Equal", 32, 34))
sketch1.addConstraint(Sketcher.Constraint("Equal", 34, 36))
sketch1.addConstraint(Sketcher.Constraint("Equal", 36, 38))
sketch1.addConstraint(Sketcher.Constraint("Equal", 38, 40))
sketch1.addConstraint(Sketcher.Constraint("Equal", 40, 42))
sketch1.addConstraint(Sketcher.Constraint("Equal", 42, 44))
sketch1.addConstraint(Sketcher.Constraint("Equal", 44, 46))
sketch1.addConstraint(Sketcher.Constraint("Equal", 46, 48))
sketch1.addConstraint(Sketcher.Constraint("Equal", 48, 50))
sketch1.addConstraint(Sketcher.Constraint("Equal", 50, 52))
sketch1.addConstraint(Sketcher.Constraint("Equal", 52, 54))
sketch1.addConstraint(Sketcher.Constraint("Equal", 54, 56))
sketch1.addConstraint(Sketcher.Constraint("Equal", 56, 58))
sketch1.addConstraint(Sketcher.Constraint("Equal", 58, 60))
sketch1.addConstraint(Sketcher.Constraint("Equal", 60, 62))
sketch1.addConstraint(Sketcher.Constraint("Equal", 62, 64))
sketch1.addConstraint(Sketcher.Constraint("Equal", 64, 66))
sketch1.addConstraint(Sketcher.Constraint("Equal", 66, 68))
sketch1.addConstraint(Sketcher.Constraint("Equal", 68, 70))
sketch1.addConstraint(Sketcher.Constraint("Equal", 70, 72))
sketch1.addConstraint(Sketcher.Constraint("Equal", 72, 74))
sketch1.addConstraint(Sketcher.Constraint("Equal", 74, 76))
sketch1.addConstraint(Sketcher.Constraint("Equal", 76, 78))
sketch1.addConstraint(Sketcher.Constraint("Symmetric", 0, 3, 40, 3, -1, 1))
sketch1.addConstraint(Sketcher.Constraint("Symmetric", 2, 3, 42, 3, -1, 1))
sketch1.addConstraint(Sketcher.Constraint("Symmetric", 4, 3, 44, 3, -1, 1))
sketch1.addConstraint(Sketcher.Constraint("Symmetric", 6, 3, 46, 3, -1, 1))
sketch1.addConstraint(Sketcher.Constraint("Symmetric", 8, 3, 48, 3, -1, 1))
sketch1.addConstraint(Sketcher.Constraint("Symmetric", 10, 3, 50, 3, -1, 1))
sketch1.addConstraint(Sketcher.Constraint("Symmetric", 12, 3, 52, 3, -1, 1))
sketch1.addConstraint(Sketcher.Constraint("Symmetric", 14, 3, 54, 3, -1, 1))
sketch1.addConstraint(Sketcher.Constraint("Symmetric", 16, 3, 56, 3, -1, 1))
sketch1.addConstraint(Sketcher.Constraint("Symmetric", 18, 3, 58, 3, -1, 1))
sketch1.addConstraint(Sketcher.Constraint("Symmetric", 20, 3, 60, 3, -1, 1))
sketch1.addConstraint(Sketcher.Constraint("Symmetric", 22, 3, 62, 3, -1, 1))
sketch1.addConstraint(Sketcher.Constraint("Symmetric", 24, 3, 64, 3, -1, 1))
sketch1.addConstraint(Sketcher.Constraint("Symmetric", 26, 3, 66, 3, -1, 1))
sketch1.addConstraint(Sketcher.Constraint("Symmetric", 28, 3, 68, 3, -1, 1))
sketch1.addConstraint(Sketcher.Constraint("Symmetric", 30, 3, 70, 3, -1, 1))
sketch1.addConstraint(Sketcher.Constraint("Symmetric", 32, 3, 72, 3, -1, 1))
sketch1.addConstraint(Sketcher.Constraint("Symmetric", 34, 3, 74, 3, -1, 1))
sketch1.addConstraint(Sketcher.Constraint("Symmetric", 36, 3, 76, 3, -1, 1))
sketch1.addConstraint(Sketcher.Constraint("Symmetric", 38, 3, 78, 3, -1, 1))
sketch1.addConstraint(Sketcher.Constraint("Symmetric", 38, 3, 42, 3, -2))
sketch1.addConstraint(Sketcher.Constraint("Symmetric", 36, 3, 44, 3, -2))
sketch1.addConstraint(Sketcher.Constraint("Symmetric", 34, 3, 46, 3, -2))
sketch1.addConstraint(Sketcher.Constraint("Symmetric", 32, 3, 48, 3, -2))
sketch1.addConstraint(Sketcher.Constraint("Symmetric", 30, 3, 50, 3, -2))
sketch1.addConstraint(Sketcher.Constraint("Symmetric", 28, 3, 52, 3, -2))
sketch1.addConstraint(Sketcher.Constraint("Symmetric", 26, 3, 54, 3, -2))
sketch1.addConstraint(Sketcher.Constraint("Symmetric", 24, 3, 56, 3, -2))
sketch1.addConstraint(Sketcher.Constraint("Symmetric", 22, 3, 58, 3, -2))
sketch1.addConstraint(Sketcher.Constraint("PointOnObject", 0, 3, -2))
sketch1.addConstraint(Sketcher.Constraint("PointOnObject", 20, 3, -1))
sketch1.addConstraint(Sketcher.Constraint("Perpendicular", 1, 21))
sketch1.addConstraint(Sketcher.Constraint("Perpendicular", 3, 23))
sketch1.addConstraint(Sketcher.Constraint("Perpendicular", 5, 25))
sketch1.addConstraint(Sketcher.Constraint("Perpendicular", 7, 27))
sketch1.addConstraint(Sketcher.Constraint("Perpendicular", 9, 29))
sketch1.addConstraint(Sketcher.Constraint("Horizontal", 38, 1, 41, 2))
sketch1.addConstraint(Sketcher.Constraint("Horizontal", 21, 2, 58, 1))
sketch1.addConstraint(Sketcher.Constraint("Horizontal", 18, 1, 61, 2))
sketch1.addConstraint(Sketcher.Constraint("Horizontal", 1, 2, 78, 1))
sketch1.addConstraint(Sketcher.Constraint("Vertical", 18, 1, 21, 2))
sketch1.addConstraint(Sketcher.Constraint("Vertical", 1, 2, 38, 1))
sketch1.addConstraint(Sketcher.Constraint("Equal", 1, 3))
sketch1.addConstraint(Sketcher.Constraint("Equal", 3, 5))
sketch1.addConstraint(Sketcher.Constraint("Equal", 5, 7))
sketch1.addConstraint(Sketcher.Constraint("Equal", 7, 9))
sketch1.addConstraint(Sketcher.Constraint("Equal", 9, 11))
sketch1.addConstraint(Sketcher.Constraint("Equal", 11, 13))
sketch1.addConstraint(Sketcher.Constraint("Equal", 13, 15))
sketch1.addConstraint(Sketcher.Constraint("Equal", 15, 17))
sketch1.addConstraint(Sketcher.Constraint("Equal", 17, 19))
sketch1.addConstraint(Sketcher.Constraint("Radius", 0, 0.199999))
sketch1.addConstraint(Sketcher.Constraint("DistanceY", -1, 1, 0, 3, 9.936199))
sketch1.addConstraint(Sketcher.Constraint("DistanceX", 20, 3, -1, 1, 9.936199))
sketch1.addConstraint(Sketcher.Constraint("Distance", 1, 2.430751))
sketch1.addConstraint(Sketcher.Constraint("DistanceY", -1, 1, 2, 3, 7.805421))
sketch1.addConstraint(Sketcher.Constraint("DistanceY", -1, 1, 6, 3, 7.041371))
sketch1.addConstraint(Sketcher.Constraint("DistanceX", 8, 3, -1, 1, 5.840351))
sketch1.addConstraint(Sketcher.Constraint("DistanceX", 4, 2, -1, 1, 3.270219))
sketch1.addConstraint(Sketcher.Constraint("DistanceY", -1, 1, 5, 2, 7.031681))
pad1 = body.newObject("PartDesign::Pad", "Pad")
pad1.Profile = sketch1
pad1.Length = 4

# Sketch on YZ plane
sketch2 = body.newObject("Sketcher::SketchObject", "Sketch001")
sketch2.AttachmentSupport = (doc.getObject("YZ_Plane"), [""])
sketch2.MapMode = "FlatFace"
sketch2.addGeometry(Part.Circle(V(0, 0, 0), V(0, 0, 1), 2.5), False)
sketch2.addConstraint(Sketcher.Constraint("Coincident", 0, 3, -1, 1))
sketch2.addConstraint(Sketcher.Constraint("Diameter", 0, 5.0))
pad2 = body.newObject("PartDesign::Pad", "Pad001")
pad2.Profile = sketch2
pad2.Length = 25
pad2.Reversed = True

doc.recompute()
